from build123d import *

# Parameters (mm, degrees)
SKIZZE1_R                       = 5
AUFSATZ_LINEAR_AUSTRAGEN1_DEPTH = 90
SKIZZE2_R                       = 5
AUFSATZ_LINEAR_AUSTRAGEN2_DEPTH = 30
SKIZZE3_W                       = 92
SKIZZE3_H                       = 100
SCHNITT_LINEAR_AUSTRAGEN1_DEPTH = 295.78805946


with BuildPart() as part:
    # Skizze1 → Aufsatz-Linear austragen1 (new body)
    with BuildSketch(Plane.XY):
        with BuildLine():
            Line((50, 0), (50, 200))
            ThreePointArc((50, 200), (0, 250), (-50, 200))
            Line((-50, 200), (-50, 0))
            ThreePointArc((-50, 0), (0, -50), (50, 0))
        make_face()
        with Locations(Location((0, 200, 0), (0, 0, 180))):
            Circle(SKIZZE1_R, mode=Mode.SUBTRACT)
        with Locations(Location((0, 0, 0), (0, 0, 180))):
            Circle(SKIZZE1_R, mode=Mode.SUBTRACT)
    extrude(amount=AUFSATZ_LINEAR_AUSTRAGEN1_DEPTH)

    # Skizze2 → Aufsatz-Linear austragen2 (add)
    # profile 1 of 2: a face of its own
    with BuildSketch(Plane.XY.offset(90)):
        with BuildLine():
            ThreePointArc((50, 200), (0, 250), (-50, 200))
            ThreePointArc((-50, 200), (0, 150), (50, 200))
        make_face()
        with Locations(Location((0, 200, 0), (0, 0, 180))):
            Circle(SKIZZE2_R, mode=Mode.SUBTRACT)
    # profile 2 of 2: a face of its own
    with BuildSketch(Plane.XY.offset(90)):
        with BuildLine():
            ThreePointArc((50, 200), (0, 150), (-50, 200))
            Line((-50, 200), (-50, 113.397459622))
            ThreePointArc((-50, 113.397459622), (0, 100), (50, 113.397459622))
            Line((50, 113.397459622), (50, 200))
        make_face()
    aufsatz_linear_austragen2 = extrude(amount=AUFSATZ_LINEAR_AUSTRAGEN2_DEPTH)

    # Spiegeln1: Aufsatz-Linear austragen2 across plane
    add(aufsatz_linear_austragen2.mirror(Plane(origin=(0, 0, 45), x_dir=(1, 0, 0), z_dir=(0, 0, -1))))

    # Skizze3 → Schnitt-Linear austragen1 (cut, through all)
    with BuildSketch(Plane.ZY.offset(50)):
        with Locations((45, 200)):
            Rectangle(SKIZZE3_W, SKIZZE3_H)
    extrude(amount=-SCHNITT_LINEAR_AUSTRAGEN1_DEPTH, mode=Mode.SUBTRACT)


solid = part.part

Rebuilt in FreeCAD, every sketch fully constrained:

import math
import FreeCAD as App
import Part
import Sketcher
from FreeCAD import Vector


def add_polygon(sketch, points):
    """Adds a closed chain of lines whose ends are joined by coincident constraints."""
    first, n = sketch.GeometryCount, len(points)
    for a, b in zip(points, points[1:] + points[:1]):
        sketch.addGeometry(Part.LineSegment(App.Vector(*a, 0), App.Vector(*b, 0)), False)
    for i in range(n):
        sketch.addConstraint(Sketcher.Constraint("Coincident", first + i, 2, first + (i + 1) % n, 1))

doc = App.newDocument("Part")
body = doc.addObject("PartDesign::Body", "Body")

# Sketch on XY plane
sketch1 = doc.addObject("Sketcher::SketchObject", "Sketch")
body.addObject(sketch1)
sketch1.AttachmentSupport = (doc.XY_Plane, [""])
sketch1.MapMode = "FlatFace"
sketch1.addGeometry(Part.LineSegment(Vector(50, 0, 0), Vector(50, 200, 0)), False)
sketch1.addGeometry(Part.ArcOfCircle(Part.Circle(Vector(0, 200, 0), Vector(0, 0, 1), 50), math.radians(0), math.radians(180)), False)
sketch1.addGeometry(Part.LineSegment(Vector(-50, 200, 0), Vector(-50, 0, 0)), False)
sketch1.addGeometry(Part.ArcOfCircle(Part.Circle(Vector(0, 0, 0), Vector(0, 0, 1), 50), math.radians(180), math.radians(360)), False)
sketch1.addGeometry(Part.Circle(Vector(0, 0, 0), Vector(0, 0, 1), 5), False)
sketch1.addGeometry(Part.Circle(Vector(0, 200, 0), Vector(0, 0, 1), 5), False)
sketch1.addConstraint(Sketcher.Constraint("Tangent", 0, 2, 1, 1))
sketch1.addConstraint(Sketcher.Constraint("Tangent", 1, 2, 2, 1))
sketch1.addConstraint(Sketcher.Constraint("Tangent", 2, 2, 3, 1))
sketch1.addConstraint(Sketcher.Constraint("Tangent", 3, 2, 0, 1))
sketch1.addConstraint(Sketcher.Constraint("Vertical", 0))
sketch1.addConstraint(Sketcher.Constraint("Vertical", 2))
sketch1.addConstraint(Sketcher.Constraint("Coincident", 3, 3, -1, 1))
sketch1.addConstraint(Sketcher.Constraint("Coincident", 4, 3, -1, 1))
sketch1.addConstraint(Sketcher.Constraint("Coincident", 5, 3, 1, 3))
sketch1.addConstraint(Sketcher.Constraint("Equal", 4, 5))
sketch1.addConstraint(Sketcher.Constraint("Diameter", 4, 10.0))
sketch1.addConstraint(Sketcher.Constraint("Radius", 1, 50.0))
sketch1.addConstraint(Sketcher.Constraint("DistanceY", 0, 1, 0, 2, 200.0))
pad1 = doc.addObject("PartDesign::Pad", "Pad")
body.addObject(pad1)
pad1.Profile = sketch1
pad1.Length = 90

# Sketch on XY plane
sketch2 = doc.addObject("Sketcher::SketchObject", "Sketch001")
body.addObject(sketch2)
sketch2.AttachmentSupport = (doc.XY_Plane, [""])
sketch2.MapMode = "FlatFace"
sketch2.AttachmentOffset = App.Placement(Vector(0, 0, 90), App.Rotation())
sketch2.addGeometry(Part.ArcOfCircle(Part.Circle(Vector(0, 200, 0), Vector(0, 0, 1), 50), math.radians(0), math.radians(180)), False)
sketch2.addGeometry(Part.LineSegment(Vector(-50, 200, 0), Vector(-50, 113, 0)), False)
sketch2.addGeometry(Part.ArcOfCircle(Part.Circle(Vector(0, 200, 0), Vector(0, 0, 1), 100), math.radians(-120), math.radians(-60)), False)
sketch2.addGeometry(Part.LineSegment(Vector(50, 113, 0), Vector(50, 200, 0)), False)
sketch2.addGeometry(Part.Circle(Vector(0, 200, 0), Vector(0, 0, 1), 5), False)
sketch2.addConstraint(Sketcher.Constraint("Tangent", 0, 2, 1, 1))
sketch2.addConstraint(Sketcher.Constraint("Coincident", 1, 2, 2, 1))
sketch2.addConstraint(Sketcher.Constraint("Coincident", 2, 2, 3, 1))
sketch2.addConstraint(Sketcher.Constraint("Tangent", 3, 2, 0, 1))
sketch2.addConstraint(Sketcher.Constraint("Vertical", 1))
sketch2.addConstraint(Sketcher.Constraint("Vertical", 3))
sketch2.addConstraint(Sketcher.Constraint("Coincident", 2, 3, 0, 3))
sketch2.addConstraint(Sketcher.Constraint("Coincident", 4, 3, 0, 3))
sketch2.addConstraint(Sketcher.Constraint("PointOnObject", 0, 3, -2))
sketch2.addConstraint(Sketcher.Constraint("Diameter", 4, 10.0))
sketch2.addConstraint(Sketcher.Constraint("Radius", 0, 50.0))
sketch2.addConstraint(Sketcher.Constraint("Radius", 2, 100.0))
sketch2.addConstraint(Sketcher.Constraint("DistanceY", -1, 1, 0, 3, 200.0))
pad2 = doc.addObject("PartDesign::Pad", "Pad001")
body.addObject(pad2)
pad2.Profile = sketch2
pad2.Length = 30
doc.recompute()

datumplane = doc.addObject("PartDesign::Plane", "DatumPlane")
body.addObject(datumplane)
datumplane.AttachmentSupport = (doc.XY_Plane, [""])
datumplane.MapMode = "FlatFace"
datumplane.AttachmentOffset = App.Placement(Vector(0, 0, 45), App.Rotation())
mirrored = doc.addObject("PartDesign::Mirrored", "Mirrored")
body.addObject(mirrored)
mirrored.Originals = [pad2]
mirrored.MirrorPlane = (datumplane, [""])
body.Tip = mirrored

# Sketch on YZ plane
sketch3 = doc.addObject("Sketcher::SketchObject", "Sketch002")
body.addObject(sketch3)
sketch3.AttachmentSupport = (doc.YZ_Plane, [""])
sketch3.MapMode = "FlatFace"
sketch3.AttachmentOffset = App.Placement(Vector(0, 0, -50), App.Rotation())
add_polygon(sketch3, [(250, -1), (150, -1), (150, 91), (250, 91)])  # lines 0-3
sketch3.addConstraint(Sketcher.Constraint("Horizontal", 0))
sketch3.addConstraint(Sketcher.Constraint("Vertical", 1))
sketch3.addConstraint(Sketcher.Constraint("Horizontal", 2))
sketch3.addConstraint(Sketcher.Constraint("Vertical", 3))
sketch3.addConstraint(Sketcher.Constraint("DistanceX", 0, 2, 0, 1, 100.0))
sketch3.addConstraint(Sketcher.Constraint("DistanceY", 1, 1, 1, 2, 92.0))
sketch3.addConstraint(Sketcher.Constraint("DistanceX", -1, 1, 0, 2, 150.0))
sketch3.addConstraint(Sketcher.Constraint("DistanceY", 0, 2, -1, 1, 1.0))
pocket1 = doc.addObject("PartDesign::Pocket", "Pocket")
body.addObject(pocket1)
pocket1.Profile = sketch3
pocket1.Type = "ThroughAll"
pocket1.Reversed = True

doc.recompute()
